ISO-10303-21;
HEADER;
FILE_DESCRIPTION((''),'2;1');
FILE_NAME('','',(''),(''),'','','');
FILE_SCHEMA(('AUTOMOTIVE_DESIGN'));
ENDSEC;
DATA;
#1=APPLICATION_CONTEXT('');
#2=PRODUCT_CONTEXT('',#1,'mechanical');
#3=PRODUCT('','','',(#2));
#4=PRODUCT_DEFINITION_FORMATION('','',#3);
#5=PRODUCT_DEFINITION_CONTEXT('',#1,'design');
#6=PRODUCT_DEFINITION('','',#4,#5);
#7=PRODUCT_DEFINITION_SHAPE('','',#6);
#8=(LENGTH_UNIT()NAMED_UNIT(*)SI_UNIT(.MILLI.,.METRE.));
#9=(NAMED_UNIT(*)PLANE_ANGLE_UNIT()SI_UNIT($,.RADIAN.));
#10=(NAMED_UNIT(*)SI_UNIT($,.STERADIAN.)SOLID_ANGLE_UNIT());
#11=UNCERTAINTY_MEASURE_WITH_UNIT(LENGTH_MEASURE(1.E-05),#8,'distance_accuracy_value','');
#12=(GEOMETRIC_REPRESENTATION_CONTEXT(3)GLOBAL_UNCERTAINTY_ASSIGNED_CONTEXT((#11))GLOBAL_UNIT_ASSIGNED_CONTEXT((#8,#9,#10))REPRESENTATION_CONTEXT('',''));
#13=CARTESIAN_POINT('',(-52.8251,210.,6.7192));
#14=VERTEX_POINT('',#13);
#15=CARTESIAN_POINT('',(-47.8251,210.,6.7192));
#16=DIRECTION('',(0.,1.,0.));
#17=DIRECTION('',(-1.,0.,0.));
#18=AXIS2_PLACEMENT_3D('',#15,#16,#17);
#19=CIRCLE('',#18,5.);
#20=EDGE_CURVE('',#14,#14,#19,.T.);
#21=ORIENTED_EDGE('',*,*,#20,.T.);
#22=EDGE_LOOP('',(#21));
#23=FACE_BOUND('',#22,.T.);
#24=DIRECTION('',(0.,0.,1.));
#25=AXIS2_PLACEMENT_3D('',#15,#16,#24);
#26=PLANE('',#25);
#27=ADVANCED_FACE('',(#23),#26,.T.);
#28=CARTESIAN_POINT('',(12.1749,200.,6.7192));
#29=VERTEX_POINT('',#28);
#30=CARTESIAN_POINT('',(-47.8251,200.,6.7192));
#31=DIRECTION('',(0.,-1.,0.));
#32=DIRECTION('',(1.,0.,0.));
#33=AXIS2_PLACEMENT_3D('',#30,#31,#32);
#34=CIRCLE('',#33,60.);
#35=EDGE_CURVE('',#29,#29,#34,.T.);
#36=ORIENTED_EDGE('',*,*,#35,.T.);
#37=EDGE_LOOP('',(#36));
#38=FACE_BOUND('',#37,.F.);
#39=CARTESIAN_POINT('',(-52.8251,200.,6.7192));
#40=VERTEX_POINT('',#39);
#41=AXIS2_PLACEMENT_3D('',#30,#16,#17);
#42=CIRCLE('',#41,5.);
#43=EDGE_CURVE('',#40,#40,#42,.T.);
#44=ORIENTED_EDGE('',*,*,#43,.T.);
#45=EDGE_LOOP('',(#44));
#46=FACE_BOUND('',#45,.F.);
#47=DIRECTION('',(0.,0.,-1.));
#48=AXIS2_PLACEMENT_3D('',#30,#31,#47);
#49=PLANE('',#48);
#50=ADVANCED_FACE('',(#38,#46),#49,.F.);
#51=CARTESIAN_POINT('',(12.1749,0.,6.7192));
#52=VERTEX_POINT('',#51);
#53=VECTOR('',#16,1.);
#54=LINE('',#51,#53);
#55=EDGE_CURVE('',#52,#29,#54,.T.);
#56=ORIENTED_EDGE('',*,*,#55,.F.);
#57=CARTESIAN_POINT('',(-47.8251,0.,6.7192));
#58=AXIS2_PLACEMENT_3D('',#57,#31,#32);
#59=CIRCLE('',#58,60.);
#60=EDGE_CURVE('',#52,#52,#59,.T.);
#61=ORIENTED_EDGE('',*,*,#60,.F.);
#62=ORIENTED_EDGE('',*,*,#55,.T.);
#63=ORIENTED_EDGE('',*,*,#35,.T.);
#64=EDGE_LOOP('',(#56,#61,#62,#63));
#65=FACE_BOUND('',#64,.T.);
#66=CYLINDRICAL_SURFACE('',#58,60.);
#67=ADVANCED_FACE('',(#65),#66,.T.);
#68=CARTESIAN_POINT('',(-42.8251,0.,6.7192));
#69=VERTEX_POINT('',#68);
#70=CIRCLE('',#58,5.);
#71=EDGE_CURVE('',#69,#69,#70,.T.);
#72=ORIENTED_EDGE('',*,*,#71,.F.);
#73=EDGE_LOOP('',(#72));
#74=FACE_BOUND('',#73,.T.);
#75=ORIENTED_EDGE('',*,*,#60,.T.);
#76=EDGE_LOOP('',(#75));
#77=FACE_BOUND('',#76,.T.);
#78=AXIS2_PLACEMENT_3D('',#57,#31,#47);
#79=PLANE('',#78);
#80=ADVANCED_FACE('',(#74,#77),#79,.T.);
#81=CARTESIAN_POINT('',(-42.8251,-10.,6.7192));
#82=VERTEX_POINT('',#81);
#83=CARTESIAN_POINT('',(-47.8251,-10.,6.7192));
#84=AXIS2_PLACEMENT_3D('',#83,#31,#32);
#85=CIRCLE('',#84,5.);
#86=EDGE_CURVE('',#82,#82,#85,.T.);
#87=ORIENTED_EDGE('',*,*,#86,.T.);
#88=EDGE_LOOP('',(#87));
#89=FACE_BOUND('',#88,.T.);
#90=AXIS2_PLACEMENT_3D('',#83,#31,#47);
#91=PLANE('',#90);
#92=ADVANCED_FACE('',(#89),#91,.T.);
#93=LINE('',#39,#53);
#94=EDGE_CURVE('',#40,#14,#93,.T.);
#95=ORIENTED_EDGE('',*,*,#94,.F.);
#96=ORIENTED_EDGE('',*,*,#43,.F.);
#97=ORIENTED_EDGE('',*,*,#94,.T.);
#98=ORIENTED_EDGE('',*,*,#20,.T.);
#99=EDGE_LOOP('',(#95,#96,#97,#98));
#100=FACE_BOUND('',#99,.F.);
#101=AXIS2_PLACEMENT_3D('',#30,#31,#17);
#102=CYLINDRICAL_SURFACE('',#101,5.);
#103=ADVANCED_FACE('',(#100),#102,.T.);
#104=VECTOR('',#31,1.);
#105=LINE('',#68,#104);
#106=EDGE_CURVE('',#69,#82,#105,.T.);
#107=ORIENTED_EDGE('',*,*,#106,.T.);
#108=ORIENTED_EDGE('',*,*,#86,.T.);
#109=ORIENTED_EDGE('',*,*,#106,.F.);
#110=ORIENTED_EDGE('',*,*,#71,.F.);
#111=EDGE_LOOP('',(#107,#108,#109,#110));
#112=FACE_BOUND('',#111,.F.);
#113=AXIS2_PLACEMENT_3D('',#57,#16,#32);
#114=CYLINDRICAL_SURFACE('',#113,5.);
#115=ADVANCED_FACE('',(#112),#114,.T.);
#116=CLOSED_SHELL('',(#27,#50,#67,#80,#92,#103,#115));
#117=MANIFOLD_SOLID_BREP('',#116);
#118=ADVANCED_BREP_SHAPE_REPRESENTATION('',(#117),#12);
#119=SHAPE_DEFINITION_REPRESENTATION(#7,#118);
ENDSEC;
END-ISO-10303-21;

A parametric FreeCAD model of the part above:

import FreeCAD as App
import Part
import Sketcher

doc = App.newDocument("Part")
body = doc.addObject("PartDesign::Body", "Body")

# Sketch on XZ plane
sketch1 = doc.addObject("Sketcher::SketchObject", "Sketch")
body.addObject(sketch1)
sketch1.AttachmentSupport = (doc.XZ_Plane, [""])
sketch1.MapMode = "FlatFace"
sketch1.addGeometry(Part.Circle(App.Vector(-48, 7, 0), App.Vector(0, 0, 1), 60), False)
sketch1.addConstraint([
    Sketcher.Constraint("Diameter", 0, 120.0),
    Sketcher.Constraint("DistanceX", 0, 3, -1, 1, 47.825),
    Sketcher.Constraint("DistanceY", -1, 1, 0, 3, 6.7192),
])
pad1 = doc.addObject("PartDesign::Pad", "Pad")
body.addObject(pad1)
pad1.Profile = sketch1
pad1.Length = 200
pad1.Reversed = True

# Sketch on XZ plane
sketch2 = doc.addObject("Sketcher::SketchObject", "Sketch001")
body.addObject(sketch2)
sketch2.AttachmentSupport = (doc.XZ_Plane, [""])
sketch2.MapMode = "FlatFace"
sketch2.addGeometry(Part.Circle(App.Vector(-48, 7, 0), App.Vector(0, 0, 1), 5), False)
sketch2.addConstraint([
    Sketcher.Constraint("Diameter", 0, 10.0),
    Sketcher.Constraint("DistanceX", 0, 3, -1, 1, 47.825),
    Sketcher.Constraint("DistanceY", -1, 1, 0, 3, 6.7192),
])
pad2 = doc.addObject("PartDesign::Pad", "Pad001")
body.addObject(pad2)
pad2.Profile = sketch2
pad2.Length = 10

# Sketch on XZ plane
sketch3 = doc.addObject("Sketcher::SketchObject", "Sketch002")
body.addObject(sketch3)
sketch3.AttachmentSupport = (doc.XZ_Plane, [""])
sketch3.MapMode = "FlatFace"
sketch3.AttachmentOffset = App.Placement(App.Vector(0, 0, -200), App.Rotation())
sketch3.addGeometry(Part.Circle(App.Vector(-48, 7, 0), App.Vector(0, 0, 1), 5), False)
sketch3.addConstraint([
    Sketcher.Constraint("Diameter", 0, 10.0),
    Sketcher.Constraint("DistanceX", 0, 3, -1, 1, 47.825),
    Sketcher.Constraint("DistanceY", -1, 1, 0, 3, 6.7192),
])
pad3 = doc.addObject("PartDesign::Pad", "Pad002")
body.addObject(pad3)
pad3.Profile = sketch3
pad3.Length = 10
pad3.Reversed = True

doc.recompute()
